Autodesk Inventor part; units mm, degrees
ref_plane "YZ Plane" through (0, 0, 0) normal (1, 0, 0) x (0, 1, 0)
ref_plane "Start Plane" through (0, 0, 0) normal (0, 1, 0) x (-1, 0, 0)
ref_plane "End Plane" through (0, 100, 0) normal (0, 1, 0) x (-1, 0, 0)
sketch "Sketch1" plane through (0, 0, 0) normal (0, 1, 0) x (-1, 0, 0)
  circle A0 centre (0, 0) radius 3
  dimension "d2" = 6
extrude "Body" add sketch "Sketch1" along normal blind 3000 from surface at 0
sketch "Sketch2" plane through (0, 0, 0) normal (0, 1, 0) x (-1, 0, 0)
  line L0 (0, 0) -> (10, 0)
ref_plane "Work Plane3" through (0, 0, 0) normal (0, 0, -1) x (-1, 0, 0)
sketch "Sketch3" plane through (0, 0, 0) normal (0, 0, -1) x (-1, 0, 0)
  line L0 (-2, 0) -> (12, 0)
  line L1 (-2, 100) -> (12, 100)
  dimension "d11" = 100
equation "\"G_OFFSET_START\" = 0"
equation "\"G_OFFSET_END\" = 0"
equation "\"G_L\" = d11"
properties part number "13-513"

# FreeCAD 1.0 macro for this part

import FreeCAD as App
import Part
import Sketcher

V = App.Vector

doc = App.newDocument("Part")
body = doc.addObject("PartDesign::Body", "Body")

# Sketch on XZ plane
sketch1 = body.newObject("Sketcher::SketchObject", "Sketch")
sketch1.AttachmentSupport = (doc.getObject("XZ_Plane"), [""])
sketch1.MapMode = "FlatFace"
sketch1.addGeometry(Part.Circle(V(0, 0, 0), V(0, 0, 1), 3), False)
sketch1.addConstraint([
    Sketcher.Constraint("Coincident", 0, 3, -1, 1),
    Sketcher.Constraint("Diameter", 0, 6.0),
])
pad1 = body.newObject("PartDesign::Pad", "Pad")
pad1.Profile = sketch1
pad1.Length = 3000
pad1.Reversed = True

doc.recompute()
